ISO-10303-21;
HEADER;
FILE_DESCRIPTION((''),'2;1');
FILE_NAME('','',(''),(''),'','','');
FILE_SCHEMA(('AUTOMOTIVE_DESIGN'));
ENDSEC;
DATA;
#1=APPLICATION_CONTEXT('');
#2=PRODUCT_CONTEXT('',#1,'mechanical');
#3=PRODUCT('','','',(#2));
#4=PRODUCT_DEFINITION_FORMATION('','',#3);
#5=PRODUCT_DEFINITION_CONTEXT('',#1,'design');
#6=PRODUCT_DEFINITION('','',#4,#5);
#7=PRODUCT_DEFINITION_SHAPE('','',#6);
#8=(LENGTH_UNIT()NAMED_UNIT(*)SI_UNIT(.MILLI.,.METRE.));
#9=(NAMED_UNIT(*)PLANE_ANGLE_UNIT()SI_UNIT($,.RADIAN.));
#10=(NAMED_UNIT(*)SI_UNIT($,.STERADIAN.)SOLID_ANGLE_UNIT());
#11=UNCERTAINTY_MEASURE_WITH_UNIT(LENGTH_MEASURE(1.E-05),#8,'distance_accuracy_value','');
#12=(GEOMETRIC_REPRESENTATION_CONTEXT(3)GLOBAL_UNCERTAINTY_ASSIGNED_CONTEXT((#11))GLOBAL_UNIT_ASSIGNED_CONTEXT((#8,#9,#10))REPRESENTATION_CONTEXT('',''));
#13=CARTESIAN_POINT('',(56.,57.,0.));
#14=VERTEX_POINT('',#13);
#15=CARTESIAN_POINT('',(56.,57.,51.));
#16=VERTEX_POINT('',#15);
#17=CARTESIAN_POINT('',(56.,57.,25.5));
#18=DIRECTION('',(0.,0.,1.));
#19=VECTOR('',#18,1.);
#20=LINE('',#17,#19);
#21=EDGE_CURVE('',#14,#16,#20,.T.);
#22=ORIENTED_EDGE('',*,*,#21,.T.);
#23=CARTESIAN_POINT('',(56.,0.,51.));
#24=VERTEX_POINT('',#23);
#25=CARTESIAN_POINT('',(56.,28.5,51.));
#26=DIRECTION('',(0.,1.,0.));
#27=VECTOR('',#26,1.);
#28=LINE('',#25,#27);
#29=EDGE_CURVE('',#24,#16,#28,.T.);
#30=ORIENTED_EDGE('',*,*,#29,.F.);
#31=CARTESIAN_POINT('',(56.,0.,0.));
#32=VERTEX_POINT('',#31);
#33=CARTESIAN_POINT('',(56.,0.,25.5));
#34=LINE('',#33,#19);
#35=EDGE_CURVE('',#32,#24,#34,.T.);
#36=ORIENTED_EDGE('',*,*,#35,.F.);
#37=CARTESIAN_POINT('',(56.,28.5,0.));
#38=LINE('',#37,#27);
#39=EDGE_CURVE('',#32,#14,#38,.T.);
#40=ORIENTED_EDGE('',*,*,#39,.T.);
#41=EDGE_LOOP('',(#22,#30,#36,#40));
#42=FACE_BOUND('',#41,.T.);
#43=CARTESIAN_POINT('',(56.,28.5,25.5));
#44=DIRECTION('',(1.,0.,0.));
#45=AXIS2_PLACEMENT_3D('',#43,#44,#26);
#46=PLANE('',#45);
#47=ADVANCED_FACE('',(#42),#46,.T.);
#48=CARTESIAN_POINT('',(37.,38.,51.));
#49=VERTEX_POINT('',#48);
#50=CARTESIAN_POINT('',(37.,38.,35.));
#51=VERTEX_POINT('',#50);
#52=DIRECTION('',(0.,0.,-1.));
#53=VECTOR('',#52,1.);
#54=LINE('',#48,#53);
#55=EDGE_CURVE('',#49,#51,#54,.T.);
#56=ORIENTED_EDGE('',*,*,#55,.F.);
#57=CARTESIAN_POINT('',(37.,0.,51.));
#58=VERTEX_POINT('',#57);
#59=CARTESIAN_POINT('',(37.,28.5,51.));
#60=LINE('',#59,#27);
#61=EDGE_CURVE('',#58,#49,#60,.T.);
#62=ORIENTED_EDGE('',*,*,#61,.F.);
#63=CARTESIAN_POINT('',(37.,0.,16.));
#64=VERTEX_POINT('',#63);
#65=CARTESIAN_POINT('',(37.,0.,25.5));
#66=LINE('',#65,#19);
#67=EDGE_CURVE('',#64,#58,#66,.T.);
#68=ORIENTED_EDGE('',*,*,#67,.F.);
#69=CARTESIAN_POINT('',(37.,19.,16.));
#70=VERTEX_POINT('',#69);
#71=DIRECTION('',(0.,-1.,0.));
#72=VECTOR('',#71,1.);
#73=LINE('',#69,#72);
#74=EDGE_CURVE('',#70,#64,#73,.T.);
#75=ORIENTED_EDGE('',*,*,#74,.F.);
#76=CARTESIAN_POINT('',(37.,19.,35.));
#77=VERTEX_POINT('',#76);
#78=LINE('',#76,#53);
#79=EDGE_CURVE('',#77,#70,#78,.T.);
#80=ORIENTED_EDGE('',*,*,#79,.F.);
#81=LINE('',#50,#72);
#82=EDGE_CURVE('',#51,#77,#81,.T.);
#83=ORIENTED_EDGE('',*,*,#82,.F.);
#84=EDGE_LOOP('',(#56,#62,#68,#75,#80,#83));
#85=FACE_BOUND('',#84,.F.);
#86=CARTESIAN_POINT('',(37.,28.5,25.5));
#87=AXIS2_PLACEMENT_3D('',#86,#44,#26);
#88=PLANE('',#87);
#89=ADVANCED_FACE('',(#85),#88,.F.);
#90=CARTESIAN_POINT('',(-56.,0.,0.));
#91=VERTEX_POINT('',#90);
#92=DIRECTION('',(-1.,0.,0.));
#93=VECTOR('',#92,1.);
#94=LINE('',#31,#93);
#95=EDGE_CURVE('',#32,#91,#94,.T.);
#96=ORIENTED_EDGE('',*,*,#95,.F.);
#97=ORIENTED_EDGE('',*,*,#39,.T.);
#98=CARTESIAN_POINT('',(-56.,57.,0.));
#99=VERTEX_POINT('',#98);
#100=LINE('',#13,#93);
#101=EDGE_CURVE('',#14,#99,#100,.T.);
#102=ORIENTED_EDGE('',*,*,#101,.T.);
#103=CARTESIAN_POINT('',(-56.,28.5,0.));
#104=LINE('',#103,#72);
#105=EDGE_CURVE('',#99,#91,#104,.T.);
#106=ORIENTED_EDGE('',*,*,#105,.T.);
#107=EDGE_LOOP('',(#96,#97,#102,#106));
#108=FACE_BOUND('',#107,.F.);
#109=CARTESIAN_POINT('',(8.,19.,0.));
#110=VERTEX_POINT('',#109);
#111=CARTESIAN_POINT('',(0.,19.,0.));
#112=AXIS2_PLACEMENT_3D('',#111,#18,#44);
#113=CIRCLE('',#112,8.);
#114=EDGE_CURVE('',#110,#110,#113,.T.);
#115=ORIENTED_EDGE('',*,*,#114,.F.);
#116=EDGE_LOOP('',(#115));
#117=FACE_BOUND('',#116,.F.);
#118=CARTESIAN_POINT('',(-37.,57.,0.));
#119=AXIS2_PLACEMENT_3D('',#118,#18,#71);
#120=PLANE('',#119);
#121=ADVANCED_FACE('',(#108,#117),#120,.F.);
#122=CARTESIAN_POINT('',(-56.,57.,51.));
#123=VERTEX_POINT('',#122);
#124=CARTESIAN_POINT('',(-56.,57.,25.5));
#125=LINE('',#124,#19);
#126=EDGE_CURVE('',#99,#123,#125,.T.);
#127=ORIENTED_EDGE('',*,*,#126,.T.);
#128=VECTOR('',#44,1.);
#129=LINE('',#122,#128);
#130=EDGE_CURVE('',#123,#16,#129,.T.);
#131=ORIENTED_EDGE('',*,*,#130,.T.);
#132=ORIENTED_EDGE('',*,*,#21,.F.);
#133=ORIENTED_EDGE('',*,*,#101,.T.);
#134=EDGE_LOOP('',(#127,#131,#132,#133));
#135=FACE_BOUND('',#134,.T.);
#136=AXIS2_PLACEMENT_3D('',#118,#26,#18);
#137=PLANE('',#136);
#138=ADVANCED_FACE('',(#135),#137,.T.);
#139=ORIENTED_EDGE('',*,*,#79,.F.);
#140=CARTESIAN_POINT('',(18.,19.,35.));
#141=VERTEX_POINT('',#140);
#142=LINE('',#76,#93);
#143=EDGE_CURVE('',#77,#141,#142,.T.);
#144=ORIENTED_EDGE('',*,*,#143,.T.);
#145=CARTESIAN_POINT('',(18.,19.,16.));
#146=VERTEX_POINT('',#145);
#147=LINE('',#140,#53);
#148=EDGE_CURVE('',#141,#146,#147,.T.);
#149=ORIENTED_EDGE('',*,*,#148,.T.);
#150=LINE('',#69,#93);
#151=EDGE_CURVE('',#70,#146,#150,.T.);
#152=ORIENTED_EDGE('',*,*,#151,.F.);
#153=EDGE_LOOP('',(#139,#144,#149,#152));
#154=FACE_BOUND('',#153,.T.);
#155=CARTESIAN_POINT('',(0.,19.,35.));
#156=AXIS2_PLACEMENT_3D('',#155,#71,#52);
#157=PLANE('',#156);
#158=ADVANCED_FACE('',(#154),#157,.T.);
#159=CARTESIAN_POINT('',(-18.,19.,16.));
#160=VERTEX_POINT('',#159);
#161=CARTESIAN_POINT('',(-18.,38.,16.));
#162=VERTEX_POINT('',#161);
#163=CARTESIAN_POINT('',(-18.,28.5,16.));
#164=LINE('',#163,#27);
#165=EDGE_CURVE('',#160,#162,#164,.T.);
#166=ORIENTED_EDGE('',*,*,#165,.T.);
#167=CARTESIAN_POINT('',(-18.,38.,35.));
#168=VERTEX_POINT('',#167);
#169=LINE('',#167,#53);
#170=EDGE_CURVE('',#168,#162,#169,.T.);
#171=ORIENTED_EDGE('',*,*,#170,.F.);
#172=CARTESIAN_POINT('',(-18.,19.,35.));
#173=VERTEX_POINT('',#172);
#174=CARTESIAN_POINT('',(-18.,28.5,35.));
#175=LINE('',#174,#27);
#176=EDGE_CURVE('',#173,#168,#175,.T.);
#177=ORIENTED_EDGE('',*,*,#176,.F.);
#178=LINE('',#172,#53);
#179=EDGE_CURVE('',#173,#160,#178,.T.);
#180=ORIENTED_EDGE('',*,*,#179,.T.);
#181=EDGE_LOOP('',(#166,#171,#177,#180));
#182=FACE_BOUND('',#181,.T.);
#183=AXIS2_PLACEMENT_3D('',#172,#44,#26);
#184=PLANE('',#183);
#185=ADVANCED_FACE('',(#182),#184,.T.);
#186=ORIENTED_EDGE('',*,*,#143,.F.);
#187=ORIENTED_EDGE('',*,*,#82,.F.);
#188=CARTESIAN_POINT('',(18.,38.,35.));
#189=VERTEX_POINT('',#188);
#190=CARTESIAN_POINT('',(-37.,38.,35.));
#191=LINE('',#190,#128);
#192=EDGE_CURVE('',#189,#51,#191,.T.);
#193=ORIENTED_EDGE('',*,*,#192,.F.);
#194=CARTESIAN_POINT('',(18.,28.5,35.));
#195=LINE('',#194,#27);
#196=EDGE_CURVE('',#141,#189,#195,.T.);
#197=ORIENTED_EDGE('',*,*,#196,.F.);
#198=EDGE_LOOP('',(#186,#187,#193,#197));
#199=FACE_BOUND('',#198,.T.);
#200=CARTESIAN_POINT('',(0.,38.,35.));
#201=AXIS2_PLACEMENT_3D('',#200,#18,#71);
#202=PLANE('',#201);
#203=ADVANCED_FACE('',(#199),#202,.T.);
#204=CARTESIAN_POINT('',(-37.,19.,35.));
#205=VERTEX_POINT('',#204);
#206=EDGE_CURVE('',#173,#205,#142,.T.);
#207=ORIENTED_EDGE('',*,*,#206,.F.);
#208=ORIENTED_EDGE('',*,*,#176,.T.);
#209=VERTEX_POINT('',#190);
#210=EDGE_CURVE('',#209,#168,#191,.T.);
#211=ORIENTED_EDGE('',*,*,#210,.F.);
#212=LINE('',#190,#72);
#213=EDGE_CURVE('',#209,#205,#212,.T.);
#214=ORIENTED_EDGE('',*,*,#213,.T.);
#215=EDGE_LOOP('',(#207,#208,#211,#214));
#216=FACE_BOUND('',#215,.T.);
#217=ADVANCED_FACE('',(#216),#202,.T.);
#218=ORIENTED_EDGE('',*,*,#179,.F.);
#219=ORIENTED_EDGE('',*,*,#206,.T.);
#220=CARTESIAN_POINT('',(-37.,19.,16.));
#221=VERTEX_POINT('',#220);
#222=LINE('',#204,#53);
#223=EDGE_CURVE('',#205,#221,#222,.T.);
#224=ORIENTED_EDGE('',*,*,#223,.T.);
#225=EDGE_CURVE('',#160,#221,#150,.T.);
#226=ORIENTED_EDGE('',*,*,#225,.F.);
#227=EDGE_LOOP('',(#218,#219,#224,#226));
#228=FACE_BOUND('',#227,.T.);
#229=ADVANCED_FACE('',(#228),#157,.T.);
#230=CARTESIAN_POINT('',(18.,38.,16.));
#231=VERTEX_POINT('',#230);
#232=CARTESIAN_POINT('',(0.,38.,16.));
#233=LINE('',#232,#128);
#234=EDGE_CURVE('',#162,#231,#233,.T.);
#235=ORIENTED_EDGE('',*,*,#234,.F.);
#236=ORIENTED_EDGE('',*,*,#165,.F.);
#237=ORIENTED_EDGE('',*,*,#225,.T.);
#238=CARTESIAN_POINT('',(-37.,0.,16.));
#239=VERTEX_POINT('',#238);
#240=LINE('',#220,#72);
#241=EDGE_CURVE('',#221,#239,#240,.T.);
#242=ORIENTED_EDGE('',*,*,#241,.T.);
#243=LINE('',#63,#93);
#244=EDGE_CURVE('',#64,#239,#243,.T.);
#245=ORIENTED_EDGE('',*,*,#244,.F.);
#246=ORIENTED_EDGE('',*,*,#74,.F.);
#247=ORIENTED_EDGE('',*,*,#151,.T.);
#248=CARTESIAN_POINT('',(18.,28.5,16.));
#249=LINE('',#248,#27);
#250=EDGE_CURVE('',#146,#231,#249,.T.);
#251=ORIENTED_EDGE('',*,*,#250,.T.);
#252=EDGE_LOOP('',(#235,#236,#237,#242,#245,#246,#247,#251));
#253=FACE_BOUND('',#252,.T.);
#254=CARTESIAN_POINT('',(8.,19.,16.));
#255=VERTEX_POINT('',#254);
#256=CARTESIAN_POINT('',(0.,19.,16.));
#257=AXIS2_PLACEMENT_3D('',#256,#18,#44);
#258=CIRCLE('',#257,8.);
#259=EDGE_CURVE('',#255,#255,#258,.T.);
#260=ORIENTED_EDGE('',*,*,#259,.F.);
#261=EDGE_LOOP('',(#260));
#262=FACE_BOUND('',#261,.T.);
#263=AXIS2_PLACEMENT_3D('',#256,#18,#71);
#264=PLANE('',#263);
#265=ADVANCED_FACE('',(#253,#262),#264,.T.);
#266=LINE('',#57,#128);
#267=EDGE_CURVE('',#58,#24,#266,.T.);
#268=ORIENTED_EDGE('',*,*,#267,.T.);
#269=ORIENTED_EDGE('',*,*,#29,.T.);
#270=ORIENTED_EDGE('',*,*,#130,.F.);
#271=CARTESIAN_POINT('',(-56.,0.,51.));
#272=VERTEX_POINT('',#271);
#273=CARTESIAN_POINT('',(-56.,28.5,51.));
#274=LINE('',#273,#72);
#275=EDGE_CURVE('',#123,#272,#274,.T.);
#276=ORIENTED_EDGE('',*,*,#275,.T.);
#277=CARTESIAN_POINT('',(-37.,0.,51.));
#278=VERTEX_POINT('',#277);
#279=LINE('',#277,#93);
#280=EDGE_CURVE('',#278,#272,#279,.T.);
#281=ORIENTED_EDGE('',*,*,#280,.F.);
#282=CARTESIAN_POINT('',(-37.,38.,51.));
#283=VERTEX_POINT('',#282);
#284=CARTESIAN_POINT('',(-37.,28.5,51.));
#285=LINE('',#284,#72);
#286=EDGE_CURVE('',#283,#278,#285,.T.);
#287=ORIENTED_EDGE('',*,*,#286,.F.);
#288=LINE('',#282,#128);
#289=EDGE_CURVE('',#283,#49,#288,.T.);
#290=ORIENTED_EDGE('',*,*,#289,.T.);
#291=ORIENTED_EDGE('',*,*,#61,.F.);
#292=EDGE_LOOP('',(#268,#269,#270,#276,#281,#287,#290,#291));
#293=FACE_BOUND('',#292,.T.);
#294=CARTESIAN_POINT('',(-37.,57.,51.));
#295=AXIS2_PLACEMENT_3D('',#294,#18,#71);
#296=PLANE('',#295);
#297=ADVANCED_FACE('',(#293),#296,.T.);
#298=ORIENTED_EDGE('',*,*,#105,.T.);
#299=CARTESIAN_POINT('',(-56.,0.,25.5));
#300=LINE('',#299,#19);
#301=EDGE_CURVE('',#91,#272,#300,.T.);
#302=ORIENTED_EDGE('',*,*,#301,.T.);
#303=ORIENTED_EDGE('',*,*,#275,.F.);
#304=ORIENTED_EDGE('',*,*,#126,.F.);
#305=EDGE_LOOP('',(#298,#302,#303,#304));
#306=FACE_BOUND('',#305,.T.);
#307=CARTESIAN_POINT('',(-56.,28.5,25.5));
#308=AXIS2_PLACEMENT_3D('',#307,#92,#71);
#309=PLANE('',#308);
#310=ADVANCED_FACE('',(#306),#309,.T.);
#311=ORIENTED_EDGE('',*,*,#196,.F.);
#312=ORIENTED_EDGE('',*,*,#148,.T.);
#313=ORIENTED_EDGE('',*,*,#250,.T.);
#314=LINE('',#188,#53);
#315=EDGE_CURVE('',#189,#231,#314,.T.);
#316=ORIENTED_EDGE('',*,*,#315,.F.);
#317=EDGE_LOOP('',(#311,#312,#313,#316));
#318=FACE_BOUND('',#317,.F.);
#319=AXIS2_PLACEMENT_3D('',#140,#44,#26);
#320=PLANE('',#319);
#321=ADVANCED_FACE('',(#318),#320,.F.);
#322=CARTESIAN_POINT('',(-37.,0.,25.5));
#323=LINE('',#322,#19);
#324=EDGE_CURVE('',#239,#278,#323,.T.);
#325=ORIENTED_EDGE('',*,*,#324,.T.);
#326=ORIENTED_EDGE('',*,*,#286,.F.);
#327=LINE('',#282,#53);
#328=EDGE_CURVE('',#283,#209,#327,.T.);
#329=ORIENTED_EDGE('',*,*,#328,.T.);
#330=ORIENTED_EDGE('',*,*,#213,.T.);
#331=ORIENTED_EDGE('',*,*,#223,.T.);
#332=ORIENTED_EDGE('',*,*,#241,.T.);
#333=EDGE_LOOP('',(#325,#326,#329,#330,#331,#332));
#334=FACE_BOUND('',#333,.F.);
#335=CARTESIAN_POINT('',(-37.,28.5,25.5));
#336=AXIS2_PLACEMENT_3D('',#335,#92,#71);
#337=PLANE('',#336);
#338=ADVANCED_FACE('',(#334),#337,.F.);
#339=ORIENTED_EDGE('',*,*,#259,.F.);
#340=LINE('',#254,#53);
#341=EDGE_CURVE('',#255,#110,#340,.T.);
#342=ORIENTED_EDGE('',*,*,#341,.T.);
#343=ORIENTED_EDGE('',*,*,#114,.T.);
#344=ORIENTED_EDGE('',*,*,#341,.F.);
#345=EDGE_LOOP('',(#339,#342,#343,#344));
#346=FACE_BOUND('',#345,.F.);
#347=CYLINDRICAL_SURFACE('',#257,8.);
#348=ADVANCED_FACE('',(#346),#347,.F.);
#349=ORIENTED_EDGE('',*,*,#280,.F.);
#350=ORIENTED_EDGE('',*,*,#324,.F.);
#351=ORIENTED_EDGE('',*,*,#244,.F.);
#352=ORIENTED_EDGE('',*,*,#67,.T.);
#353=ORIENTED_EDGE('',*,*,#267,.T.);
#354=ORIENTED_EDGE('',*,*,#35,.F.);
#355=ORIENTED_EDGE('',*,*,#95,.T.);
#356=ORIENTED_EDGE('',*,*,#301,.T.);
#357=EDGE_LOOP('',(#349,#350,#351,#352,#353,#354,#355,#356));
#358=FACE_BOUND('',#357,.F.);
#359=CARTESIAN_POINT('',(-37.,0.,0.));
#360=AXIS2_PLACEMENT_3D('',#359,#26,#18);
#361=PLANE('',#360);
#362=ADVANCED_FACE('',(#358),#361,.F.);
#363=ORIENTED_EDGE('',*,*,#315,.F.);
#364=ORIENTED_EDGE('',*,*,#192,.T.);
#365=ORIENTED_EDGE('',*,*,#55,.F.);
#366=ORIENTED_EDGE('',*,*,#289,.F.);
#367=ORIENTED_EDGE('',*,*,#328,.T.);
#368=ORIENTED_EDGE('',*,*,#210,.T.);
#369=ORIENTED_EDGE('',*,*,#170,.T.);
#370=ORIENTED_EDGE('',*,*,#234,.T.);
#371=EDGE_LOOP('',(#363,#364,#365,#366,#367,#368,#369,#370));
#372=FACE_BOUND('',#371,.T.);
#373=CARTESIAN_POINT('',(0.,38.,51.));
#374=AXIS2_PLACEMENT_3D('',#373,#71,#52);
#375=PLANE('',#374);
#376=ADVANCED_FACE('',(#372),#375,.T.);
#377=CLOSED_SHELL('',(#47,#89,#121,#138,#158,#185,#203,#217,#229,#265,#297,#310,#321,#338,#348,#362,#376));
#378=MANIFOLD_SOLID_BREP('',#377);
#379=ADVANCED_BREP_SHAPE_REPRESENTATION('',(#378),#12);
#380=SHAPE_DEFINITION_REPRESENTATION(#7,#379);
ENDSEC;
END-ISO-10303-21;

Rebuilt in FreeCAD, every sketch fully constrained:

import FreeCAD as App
import Part
import Sketcher

doc = App.newDocument("Part")
body = doc.addObject("PartDesign::Body", "Body")

# Sketch on YZ plane
sketch1 = doc.addObject("Sketcher::SketchObject", "Sketch")
body.addObject(sketch1)
sketch1.AttachmentSupport = (doc.YZ_Plane, [""])
sketch1.MapMode = "FlatFace"
sketch1.addGeometry([
    Part.LineSegment(App.Vector(0, 16, 0), App.Vector(0, 0, 0)),  # 0
    Part.LineSegment(App.Vector(0, 0, 0), App.Vector(57, 0, 0)),  # 1
    Part.LineSegment(App.Vector(57, 0, 0), App.Vector(57, 51, 0)),  # 2
    Part.LineSegment(App.Vector(57, 51, 0), App.Vector(38, 51, 0)),  # 3
    Part.LineSegment(App.Vector(38, 51, 0), App.Vector(38, 35, 0)),  # 4
    Part.LineSegment(App.Vector(38, 35, 0), App.Vector(19, 35, 0)),  # 5
    Part.LineSegment(App.Vector(19, 35, 0), App.Vector(19, 16, 0)),  # 6
    Part.LineSegment(App.Vector(19, 16, 0), App.Vector(0, 16, 0)),  # 7
], False)
sketch1.addConstraint([
    Sketcher.Constraint("Coincident", 0, 2, 1, 1),
    Sketcher.Constraint("Coincident", 1, 2, 2, 1),
    Sketcher.Constraint("Coincident", 2, 2, 3, 1),
    Sketcher.Constraint("Coincident", 3, 2, 4, 1),
    Sketcher.Constraint("Coincident", 4, 2, 5, 1),
    Sketcher.Constraint("Coincident", 5, 2, 6, 1),
    Sketcher.Constraint("Coincident", 6, 2, 7, 1),
    Sketcher.Constraint("Coincident", 7, 2, 0, 1),
    Sketcher.Constraint("Vertical", 0),
    Sketcher.Constraint("Horizontal", 1),
    Sketcher.Constraint("Vertical", 2),
    Sketcher.Constraint("Horizontal", 3),
    Sketcher.Constraint("Vertical", 4),
    Sketcher.Constraint("Horizontal", 5),
    Sketcher.Constraint("Vertical", 6),
    Sketcher.Constraint("Horizontal", 7),
    Sketcher.Constraint("Coincident", 0, 2, -1, 1),
    Sketcher.Constraint("Equal", 3, 5),
    Sketcher.Constraint("Equal", 5, 7),
    Sketcher.Constraint("Equal", 0, 4),
    Sketcher.Constraint("Equal", 7, 6),
    Sketcher.Constraint("DistanceX", 1, 1, 1, 2, 57.0),
    Sketcher.Constraint("DistanceY", 0, 2, 0, 1, 16.0),
])
pad1 = doc.addObject("PartDesign::Pad", "Pad")
body.addObject(pad1)
pad1.Profile = sketch1
pad1.Length = 74
pad1.Midplane = True

# Sketch on XY plane
sketch2 = doc.addObject("Sketcher::SketchObject", "Sketch001")
body.addObject(sketch2)
sketch2.AttachmentSupport = (doc.XY_Plane, [""])
sketch2.MapMode = "FlatFace"
sketch2.AttachmentOffset = App.Placement(App.Vector(0, 0, 35), App.Rotation())
sketch2.addGeometry([
    Part.LineSegment(App.Vector(-18, 38, 0), App.Vector(-18, 19, 0)),
    Part.LineSegment(App.Vector(-18, 19, 0), App.Vector(18, 19, 0)),
    Part.LineSegment(App.Vector(18, 19, 0), App.Vector(18, 38, 0)),
    Part.LineSegment(App.Vector(18, 38, 0), App.Vector(-18, 38, 0)),
], False)
sketch2.addConstraint([
    Sketcher.Constraint("Coincident", 0, 2, 1, 1),
    Sketcher.Constraint("Coincident", 1, 2, 2, 1),
    Sketcher.Constraint("Coincident", 2, 2, 3, 1),
    Sketcher.Constraint("Coincident", 3, 2, 0, 1),
    Sketcher.Constraint("Vertical", 0),
    Sketcher.Constraint("Horizontal", 1),
    Sketcher.Constraint("Vertical", 2),
    Sketcher.Constraint("Horizontal", 3),
    Sketcher.Constraint("DistanceX", 1, 1, 1, 2, 36.0),
    Sketcher.Constraint("DistanceY", 0, 2, 0, 1, 19.0),
    Sketcher.Constraint("DistanceX", 0, 2, -1, 1, 18.0),
    Sketcher.Constraint("DistanceY", -1, 1, 0, 2, 19.0),
])
pocket1 = doc.addObject("PartDesign::Pocket", "Pocket")
body.addObject(pocket1)
pocket1.Profile = sketch2
pocket1.Length = 19

# Sketch on YZ plane
sketch3 = doc.addObject("Sketcher::SketchObject", "Sketch002")
body.addObject(sketch3)
sketch3.AttachmentSupport = (doc.YZ_Plane, [""])
sketch3.MapMode = "FlatFace"
sketch3.AttachmentOffset = App.Placement(App.Vector(0, 0, 37), App.Rotation())
sketch3.addGeometry([
    Part.LineSegment(App.Vector(0, 51, 0), App.Vector(0, 0, 0)),
    Part.LineSegment(App.Vector(0, 0, 0), App.Vector(57, 0, 0)),
    Part.LineSegment(App.Vector(57, 0, 0), App.Vector(57, 51, 0)),
    Part.LineSegment(App.Vector(57, 51, 0), App.Vector(0, 51, 0)),
], False)
sketch3.addConstraint([
    Sketcher.Constraint("Coincident", 0, 2, 1, 1),
    Sketcher.Constraint("Coincident", 1, 2, 2, 1),
    Sketcher.Constraint("Coincident", 2, 2, 3, 1),
    Sketcher.Constraint("Coincident", 3, 2, 0, 1),
    Sketcher.Constraint("Vertical", 0),
    Sketcher.Constraint("Horizontal", 1),
    Sketcher.Constraint("Vertical", 2),
    Sketcher.Constraint("Horizontal", 3),
    Sketcher.Constraint("Coincident", 0, 2, -1, 1),
    Sketcher.Constraint("DistanceX", 1, 1, 1, 2, 57.0),
    Sketcher.Constraint("DistanceY", 0, 2, 0, 1, 51.0),
])
pad2 = doc.addObject("PartDesign::Pad", "Pad001")
body.addObject(pad2)
pad2.Profile = sketch3
pad2.Length = 19

# Sketch on YZ plane
sketch4 = doc.addObject("Sketcher::SketchObject", "Sketch003")
body.addObject(sketch4)
sketch4.AttachmentSupport = (doc.YZ_Plane, [""])
sketch4.MapMode = "FlatFace"
sketch4.AttachmentOffset = App.Placement(App.Vector(0, 0, -37), App.Rotation())
sketch4.addGeometry([
    Part.LineSegment(App.Vector(57, 51, 0), App.Vector(57, 0, 0)),
    Part.LineSegment(App.Vector(57, 0, 0), App.Vector(0, 0, 0)),
    Part.LineSegment(App.Vector(0, 0, 0), App.Vector(0, 51, 0)),
    Part.LineSegment(App.Vector(0, 51, 0), App.Vector(57, 51, 0)),
], False)
sketch4.addConstraint([
    Sketcher.Constraint("Coincident", 0, 2, 1, 1),
    Sketcher.Constraint("Coincident", 1, 2, 2, 1),
    Sketcher.Constraint("Coincident", 2, 2, 3, 1),
    Sketcher.Constraint("Coincident", 3, 2, 0, 1),
    Sketcher.Constraint("Vertical", 0),
    Sketcher.Constraint("Horizontal", 1),
    Sketcher.Constraint("Vertical", 2),
    Sketcher.Constraint("Horizontal", 3),
    Sketcher.Constraint("Coincident", 1, 2, -1, 1),
    Sketcher.Constraint("DistanceX", 1, 2, 1, 1, 57.0),
    Sketcher.Constraint("DistanceY", 0, 2, 0, 1, 51.0),
])
pad3 = doc.addObject("PartDesign::Pad", "Pad002")
body.addObject(pad3)
pad3.Profile = sketch4
pad3.Length = 19
pad3.Reversed = True

# Sketch on XY plane
sketch5 = doc.addObject("Sketcher::SketchObject", "Sketch004")
body.addObject(sketch5)
sketch5.AttachmentSupport = (doc.XY_Plane, [""])
sketch5.MapMode = "FlatFace"
sketch5.AttachmentOffset = App.Placement(App.Vector(0, 0, 16), App.Rotation())
sketch5.addGeometry(Part.Circle(App.Vector(0, 19, 0), App.Vector(0, 0, 1), 8), False)
sketch5.addConstraint([
    Sketcher.Constraint("PointOnObject", 0, 3, -2),
    Sketcher.Constraint("Diameter", 0, 16.0),
    Sketcher.Constraint("DistanceY", -1, 1, 0, 3, 19.0),
])
pocket2 = doc.addObject("PartDesign::Pocket", "Pocket001")
body.addObject(pocket2)
pocket2.Profile = sketch5
pocket2.Length = 51

doc.recompute()
